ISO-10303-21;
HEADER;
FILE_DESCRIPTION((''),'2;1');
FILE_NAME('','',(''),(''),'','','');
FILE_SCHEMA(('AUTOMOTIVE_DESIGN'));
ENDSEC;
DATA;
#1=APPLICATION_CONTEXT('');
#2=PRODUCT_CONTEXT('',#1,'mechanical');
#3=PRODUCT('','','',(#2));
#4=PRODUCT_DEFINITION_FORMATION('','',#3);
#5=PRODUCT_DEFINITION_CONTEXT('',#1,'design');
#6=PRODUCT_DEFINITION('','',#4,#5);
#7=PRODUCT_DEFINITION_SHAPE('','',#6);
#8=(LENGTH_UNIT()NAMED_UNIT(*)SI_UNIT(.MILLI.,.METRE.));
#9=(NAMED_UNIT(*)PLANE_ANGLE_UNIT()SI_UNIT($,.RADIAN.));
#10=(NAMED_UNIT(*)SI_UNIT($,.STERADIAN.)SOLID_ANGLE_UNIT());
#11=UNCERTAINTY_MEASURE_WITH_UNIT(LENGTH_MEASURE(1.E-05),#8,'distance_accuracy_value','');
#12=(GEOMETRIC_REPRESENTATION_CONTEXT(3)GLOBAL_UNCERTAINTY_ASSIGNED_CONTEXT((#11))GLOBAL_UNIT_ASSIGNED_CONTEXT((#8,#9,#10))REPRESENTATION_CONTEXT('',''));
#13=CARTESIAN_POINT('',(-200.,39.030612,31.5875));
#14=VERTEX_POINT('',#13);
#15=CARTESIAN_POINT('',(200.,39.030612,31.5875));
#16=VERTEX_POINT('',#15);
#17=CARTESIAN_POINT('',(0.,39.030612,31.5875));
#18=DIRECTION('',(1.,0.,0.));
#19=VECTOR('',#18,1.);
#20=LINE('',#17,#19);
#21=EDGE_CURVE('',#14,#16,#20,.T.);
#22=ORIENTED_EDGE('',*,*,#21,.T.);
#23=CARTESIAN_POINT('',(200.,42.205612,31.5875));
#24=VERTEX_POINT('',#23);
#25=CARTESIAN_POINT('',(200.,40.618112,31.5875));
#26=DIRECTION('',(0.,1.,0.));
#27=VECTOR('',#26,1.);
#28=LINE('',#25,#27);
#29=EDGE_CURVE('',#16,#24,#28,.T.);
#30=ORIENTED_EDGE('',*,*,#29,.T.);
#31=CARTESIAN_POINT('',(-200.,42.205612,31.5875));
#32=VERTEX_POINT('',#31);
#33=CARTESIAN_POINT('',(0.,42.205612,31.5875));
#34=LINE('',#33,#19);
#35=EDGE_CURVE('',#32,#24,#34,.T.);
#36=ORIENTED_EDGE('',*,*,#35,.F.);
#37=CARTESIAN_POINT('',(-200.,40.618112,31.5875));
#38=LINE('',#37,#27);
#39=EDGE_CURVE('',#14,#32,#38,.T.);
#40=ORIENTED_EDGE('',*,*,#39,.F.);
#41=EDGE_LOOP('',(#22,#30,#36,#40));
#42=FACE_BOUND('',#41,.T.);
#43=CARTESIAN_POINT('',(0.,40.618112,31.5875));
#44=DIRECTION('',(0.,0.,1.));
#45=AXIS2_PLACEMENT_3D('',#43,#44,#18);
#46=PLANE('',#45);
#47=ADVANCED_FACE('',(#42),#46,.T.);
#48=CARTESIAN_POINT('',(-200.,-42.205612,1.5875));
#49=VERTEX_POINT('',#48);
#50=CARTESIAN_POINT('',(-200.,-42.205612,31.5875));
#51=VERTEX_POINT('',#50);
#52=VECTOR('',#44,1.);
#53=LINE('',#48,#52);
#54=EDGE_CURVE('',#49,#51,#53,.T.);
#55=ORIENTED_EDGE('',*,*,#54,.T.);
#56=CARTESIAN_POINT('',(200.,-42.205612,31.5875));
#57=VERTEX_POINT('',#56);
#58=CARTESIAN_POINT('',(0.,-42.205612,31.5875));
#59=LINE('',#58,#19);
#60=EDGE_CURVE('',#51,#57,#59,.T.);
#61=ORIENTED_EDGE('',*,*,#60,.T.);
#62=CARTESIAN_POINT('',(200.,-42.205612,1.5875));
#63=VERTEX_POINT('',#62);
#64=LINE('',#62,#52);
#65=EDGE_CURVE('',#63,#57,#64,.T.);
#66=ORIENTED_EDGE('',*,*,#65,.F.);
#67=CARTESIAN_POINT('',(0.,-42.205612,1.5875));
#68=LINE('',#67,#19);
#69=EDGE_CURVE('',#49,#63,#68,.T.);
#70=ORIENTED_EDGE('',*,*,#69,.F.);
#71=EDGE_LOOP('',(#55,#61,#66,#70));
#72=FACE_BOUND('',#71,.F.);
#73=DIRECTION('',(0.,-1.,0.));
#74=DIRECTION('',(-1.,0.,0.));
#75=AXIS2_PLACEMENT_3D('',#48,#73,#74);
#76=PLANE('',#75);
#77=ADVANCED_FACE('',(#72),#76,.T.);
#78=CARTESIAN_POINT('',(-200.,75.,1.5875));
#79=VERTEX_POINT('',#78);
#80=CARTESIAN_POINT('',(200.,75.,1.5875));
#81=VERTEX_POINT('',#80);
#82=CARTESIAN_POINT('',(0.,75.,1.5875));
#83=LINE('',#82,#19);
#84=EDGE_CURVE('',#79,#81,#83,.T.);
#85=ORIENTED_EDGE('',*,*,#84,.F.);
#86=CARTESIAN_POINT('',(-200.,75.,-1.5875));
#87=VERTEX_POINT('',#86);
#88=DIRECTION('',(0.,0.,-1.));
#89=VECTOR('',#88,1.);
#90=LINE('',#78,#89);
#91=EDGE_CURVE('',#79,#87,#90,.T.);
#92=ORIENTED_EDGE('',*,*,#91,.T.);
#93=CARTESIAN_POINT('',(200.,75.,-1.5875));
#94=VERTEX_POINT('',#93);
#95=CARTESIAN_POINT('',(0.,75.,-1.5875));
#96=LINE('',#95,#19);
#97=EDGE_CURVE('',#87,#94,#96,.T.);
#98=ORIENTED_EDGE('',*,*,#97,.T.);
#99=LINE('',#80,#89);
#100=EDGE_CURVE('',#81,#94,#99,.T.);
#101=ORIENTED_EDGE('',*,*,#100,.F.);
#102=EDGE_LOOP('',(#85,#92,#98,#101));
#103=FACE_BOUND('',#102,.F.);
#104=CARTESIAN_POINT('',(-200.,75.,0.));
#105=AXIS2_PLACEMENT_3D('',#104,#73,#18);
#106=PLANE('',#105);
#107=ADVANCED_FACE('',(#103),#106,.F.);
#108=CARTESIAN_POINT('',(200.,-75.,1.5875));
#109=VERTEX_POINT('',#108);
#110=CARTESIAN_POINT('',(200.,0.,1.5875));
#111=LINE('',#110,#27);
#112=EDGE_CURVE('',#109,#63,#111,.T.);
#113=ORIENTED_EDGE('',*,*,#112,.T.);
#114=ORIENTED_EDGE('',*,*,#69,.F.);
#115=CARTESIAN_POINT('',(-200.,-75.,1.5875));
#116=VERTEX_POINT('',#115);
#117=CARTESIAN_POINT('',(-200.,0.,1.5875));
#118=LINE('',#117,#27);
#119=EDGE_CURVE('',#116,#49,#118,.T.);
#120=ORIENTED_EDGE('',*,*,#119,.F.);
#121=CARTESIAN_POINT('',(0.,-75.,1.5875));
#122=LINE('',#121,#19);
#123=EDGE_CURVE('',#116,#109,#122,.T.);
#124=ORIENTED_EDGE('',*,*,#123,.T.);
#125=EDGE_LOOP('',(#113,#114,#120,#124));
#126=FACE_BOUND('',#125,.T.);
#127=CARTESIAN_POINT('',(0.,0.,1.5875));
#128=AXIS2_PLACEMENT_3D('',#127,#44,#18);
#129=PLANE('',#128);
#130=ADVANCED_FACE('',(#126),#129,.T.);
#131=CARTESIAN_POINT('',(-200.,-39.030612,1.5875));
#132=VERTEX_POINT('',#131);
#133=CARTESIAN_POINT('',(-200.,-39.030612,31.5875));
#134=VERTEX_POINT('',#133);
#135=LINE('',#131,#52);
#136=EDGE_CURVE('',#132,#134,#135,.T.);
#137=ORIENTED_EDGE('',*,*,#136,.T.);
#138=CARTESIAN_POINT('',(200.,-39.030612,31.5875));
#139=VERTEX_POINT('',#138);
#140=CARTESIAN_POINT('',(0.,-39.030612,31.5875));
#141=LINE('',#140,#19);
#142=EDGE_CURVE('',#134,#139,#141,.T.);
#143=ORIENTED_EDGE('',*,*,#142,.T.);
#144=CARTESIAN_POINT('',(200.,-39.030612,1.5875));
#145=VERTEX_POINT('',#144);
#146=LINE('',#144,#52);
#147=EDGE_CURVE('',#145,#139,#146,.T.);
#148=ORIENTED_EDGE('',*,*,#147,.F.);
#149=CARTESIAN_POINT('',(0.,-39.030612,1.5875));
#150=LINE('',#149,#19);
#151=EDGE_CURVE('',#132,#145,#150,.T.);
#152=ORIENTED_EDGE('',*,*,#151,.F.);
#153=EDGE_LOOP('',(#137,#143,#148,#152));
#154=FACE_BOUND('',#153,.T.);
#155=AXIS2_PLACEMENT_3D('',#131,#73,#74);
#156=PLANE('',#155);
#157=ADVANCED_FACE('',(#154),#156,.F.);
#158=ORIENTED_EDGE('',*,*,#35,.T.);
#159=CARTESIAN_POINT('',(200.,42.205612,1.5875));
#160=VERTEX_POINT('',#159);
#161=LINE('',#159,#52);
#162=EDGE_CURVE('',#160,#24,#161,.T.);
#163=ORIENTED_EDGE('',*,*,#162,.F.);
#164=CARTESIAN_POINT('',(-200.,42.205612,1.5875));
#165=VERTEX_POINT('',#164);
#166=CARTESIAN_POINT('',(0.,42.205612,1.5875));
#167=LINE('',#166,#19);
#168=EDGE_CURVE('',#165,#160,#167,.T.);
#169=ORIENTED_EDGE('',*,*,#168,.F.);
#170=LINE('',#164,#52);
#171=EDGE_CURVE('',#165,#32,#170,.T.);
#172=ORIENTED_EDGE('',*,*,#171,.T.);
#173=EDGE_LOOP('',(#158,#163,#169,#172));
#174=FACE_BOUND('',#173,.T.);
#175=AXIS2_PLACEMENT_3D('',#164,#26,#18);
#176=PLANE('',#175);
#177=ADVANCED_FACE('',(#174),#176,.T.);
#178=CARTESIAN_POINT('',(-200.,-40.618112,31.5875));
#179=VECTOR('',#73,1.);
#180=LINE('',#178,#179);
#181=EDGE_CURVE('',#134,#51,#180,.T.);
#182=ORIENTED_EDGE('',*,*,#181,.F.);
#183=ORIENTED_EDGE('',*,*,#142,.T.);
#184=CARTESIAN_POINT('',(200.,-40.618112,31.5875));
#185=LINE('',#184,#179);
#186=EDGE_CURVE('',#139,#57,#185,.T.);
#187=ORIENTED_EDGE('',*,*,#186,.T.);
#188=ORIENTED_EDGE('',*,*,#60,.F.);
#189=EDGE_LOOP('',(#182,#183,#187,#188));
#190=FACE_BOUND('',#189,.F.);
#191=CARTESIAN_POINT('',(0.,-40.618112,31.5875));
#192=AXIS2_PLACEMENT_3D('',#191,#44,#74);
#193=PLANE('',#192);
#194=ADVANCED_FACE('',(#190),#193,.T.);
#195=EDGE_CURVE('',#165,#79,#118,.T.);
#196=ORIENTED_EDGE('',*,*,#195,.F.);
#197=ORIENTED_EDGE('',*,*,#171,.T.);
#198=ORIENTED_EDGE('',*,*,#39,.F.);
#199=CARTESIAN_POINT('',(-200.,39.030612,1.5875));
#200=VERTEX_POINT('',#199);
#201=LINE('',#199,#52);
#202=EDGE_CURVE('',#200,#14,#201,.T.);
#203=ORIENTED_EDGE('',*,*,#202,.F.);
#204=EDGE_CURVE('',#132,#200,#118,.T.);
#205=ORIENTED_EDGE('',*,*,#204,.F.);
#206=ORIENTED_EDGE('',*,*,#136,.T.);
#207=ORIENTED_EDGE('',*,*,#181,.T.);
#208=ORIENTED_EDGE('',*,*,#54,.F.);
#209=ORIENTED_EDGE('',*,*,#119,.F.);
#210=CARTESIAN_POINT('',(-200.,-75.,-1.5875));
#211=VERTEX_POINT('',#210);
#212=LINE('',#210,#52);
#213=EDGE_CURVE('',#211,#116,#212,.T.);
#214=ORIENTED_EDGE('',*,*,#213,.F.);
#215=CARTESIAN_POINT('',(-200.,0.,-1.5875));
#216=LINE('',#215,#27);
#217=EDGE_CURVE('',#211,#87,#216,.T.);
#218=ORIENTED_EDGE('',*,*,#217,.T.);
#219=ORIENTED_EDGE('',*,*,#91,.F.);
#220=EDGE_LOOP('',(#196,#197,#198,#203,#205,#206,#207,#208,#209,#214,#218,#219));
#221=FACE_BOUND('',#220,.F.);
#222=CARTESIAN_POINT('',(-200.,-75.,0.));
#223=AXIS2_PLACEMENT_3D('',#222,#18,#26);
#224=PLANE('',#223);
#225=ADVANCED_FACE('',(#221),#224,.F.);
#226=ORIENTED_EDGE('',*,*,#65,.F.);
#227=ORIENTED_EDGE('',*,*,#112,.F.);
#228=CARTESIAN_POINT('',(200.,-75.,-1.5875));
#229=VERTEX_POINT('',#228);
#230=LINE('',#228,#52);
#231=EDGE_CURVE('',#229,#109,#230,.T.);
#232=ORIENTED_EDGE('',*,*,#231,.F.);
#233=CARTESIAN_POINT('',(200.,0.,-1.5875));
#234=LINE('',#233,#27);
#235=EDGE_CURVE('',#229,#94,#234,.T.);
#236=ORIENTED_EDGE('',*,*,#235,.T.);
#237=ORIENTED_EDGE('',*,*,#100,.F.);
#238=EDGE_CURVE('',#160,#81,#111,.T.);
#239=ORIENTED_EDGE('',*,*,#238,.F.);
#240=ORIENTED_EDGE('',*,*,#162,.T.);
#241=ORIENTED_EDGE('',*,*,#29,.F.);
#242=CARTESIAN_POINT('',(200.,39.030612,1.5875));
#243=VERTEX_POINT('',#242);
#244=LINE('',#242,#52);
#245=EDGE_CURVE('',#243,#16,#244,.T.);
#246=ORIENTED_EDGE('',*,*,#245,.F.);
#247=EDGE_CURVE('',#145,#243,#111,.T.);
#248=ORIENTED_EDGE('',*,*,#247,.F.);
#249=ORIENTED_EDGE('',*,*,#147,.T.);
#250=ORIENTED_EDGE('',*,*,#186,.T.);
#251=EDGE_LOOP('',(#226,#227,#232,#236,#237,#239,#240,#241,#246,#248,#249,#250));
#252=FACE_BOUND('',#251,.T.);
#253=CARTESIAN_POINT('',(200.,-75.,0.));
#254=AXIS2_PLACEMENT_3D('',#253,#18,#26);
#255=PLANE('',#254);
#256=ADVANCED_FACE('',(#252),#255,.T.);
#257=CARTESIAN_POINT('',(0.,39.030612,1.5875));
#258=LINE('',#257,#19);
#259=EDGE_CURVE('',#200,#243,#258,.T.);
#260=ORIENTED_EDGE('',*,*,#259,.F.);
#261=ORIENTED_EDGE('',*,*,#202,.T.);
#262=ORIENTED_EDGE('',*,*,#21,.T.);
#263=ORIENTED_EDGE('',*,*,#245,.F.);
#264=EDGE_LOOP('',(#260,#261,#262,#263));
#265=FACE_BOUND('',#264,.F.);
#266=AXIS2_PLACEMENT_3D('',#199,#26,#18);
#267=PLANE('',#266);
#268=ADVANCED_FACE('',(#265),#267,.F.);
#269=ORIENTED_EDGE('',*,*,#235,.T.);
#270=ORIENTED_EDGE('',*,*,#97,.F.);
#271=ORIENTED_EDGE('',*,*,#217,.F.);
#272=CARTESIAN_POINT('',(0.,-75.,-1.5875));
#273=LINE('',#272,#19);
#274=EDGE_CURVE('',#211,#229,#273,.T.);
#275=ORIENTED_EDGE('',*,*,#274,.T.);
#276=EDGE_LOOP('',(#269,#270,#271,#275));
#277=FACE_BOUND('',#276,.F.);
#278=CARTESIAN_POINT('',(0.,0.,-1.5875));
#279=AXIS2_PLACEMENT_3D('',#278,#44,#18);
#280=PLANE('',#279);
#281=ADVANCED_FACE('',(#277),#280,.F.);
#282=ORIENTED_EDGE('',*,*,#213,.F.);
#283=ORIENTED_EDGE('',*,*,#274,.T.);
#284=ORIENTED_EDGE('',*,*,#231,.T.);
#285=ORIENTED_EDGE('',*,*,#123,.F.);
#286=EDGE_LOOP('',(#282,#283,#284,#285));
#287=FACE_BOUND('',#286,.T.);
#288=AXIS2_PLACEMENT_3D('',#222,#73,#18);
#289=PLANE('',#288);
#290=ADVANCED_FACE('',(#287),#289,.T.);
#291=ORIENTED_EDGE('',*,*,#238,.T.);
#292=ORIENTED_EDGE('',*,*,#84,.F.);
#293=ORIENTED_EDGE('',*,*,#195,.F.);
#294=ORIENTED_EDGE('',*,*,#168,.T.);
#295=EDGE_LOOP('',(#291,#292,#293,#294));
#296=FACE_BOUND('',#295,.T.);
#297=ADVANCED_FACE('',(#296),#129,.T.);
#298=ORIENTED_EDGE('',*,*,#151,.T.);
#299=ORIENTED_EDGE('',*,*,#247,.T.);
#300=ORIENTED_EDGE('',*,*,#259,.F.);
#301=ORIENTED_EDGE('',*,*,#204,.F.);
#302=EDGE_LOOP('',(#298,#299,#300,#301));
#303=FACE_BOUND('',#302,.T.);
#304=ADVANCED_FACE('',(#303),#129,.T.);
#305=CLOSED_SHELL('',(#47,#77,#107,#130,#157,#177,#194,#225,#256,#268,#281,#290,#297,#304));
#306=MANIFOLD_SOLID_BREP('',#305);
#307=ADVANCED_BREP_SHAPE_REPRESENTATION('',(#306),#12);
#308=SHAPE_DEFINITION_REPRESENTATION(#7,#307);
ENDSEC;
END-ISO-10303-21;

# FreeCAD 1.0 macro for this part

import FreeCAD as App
import Part
import Sketcher

V = App.Vector


def add_polygon(sketch, points):
    """Adds a closed chain of lines whose ends are joined by coincident constraints."""
    first, n = sketch.GeometryCount, len(points)
    for a, b in zip(points, points[1:] + points[:1]):
        sketch.addGeometry(Part.LineSegment(App.Vector(*a, 0), App.Vector(*b, 0)), False)
    for i in range(n):
        sketch.addConstraint(Sketcher.Constraint("Coincident", first + i, 2, first + (i + 1) % n, 1))

doc = App.newDocument("Part")
params = doc.addObject("Spreadsheet::Sheet", "Params")
for row, (alias, value) in enumerate([
    ("sketch1_width", "400 mm"),
    ("sketch1_height", "150 mm"),
    ("pad1_length", "3.175 mm"),
    ("sketch2_width", "400 mm"),
    ("pad2_length", "30 mm"),
], start=1):
    params.set(f"A{row}", alias)
    params.set(f"B{row}", "=" + value)
    params.setAlias(f"B{row}", alias)

body = doc.addObject("PartDesign::Body", "Body")

# Sketch on XY plane
sketch1 = doc.addObject("Sketcher::SketchObject", "Sketch")
body.addObject(sketch1)
sketch1.AttachmentSupport = (doc.XY_Plane, [""])
sketch1.MapMode = "FlatFace"
add_polygon(sketch1, [(-200, 75), (-200, -75), (200, -75), (200, 75)])  # lines 0-3
sketch1.addConstraint([
    Sketcher.Constraint("Vertical", 0),
    Sketcher.Constraint("Horizontal", 1),
    Sketcher.Constraint("Vertical", 2),
    Sketcher.Constraint("Horizontal", 3),
    Sketcher.Constraint("Symmetric", 0, 2, 2, 2, -1, 1),
    Sketcher.Constraint("DistanceX", 1, 1, 1, 2, 400.0),
    Sketcher.Constraint("DistanceY", 0, 2, 0, 1, 150.0),
])
sketch1.setExpression("Constraints[9]", "Params.sketch1_width")
sketch1.setExpression("Constraints[10]", "Params.sketch1_height")
pad1 = doc.addObject("PartDesign::Pad", "Pad")
body.addObject(pad1)
pad1.Profile = sketch1
pad1.setExpression("Length", "Params.pad1_length")
pad1.Midplane = True

# Sketch on XY plane
sketch2 = doc.addObject("Sketcher::SketchObject", "Sketch001")
body.addObject(sketch2)
sketch2.AttachmentSupport = (doc.XY_Plane, [""])
sketch2.MapMode = "FlatFace"
sketch2.AttachmentOffset = App.Placement(V(0, 0, 1.5875), App.Rotation())
add_polygon(sketch2, [(-200, 42.2), (-200, 39), (200, 39), (200, 42.2)])  # lines 0-3
sketch2.addConstraint([
    Sketcher.Constraint("Vertical", 0),
    Sketcher.Constraint("Horizontal", 1),
    Sketcher.Constraint("Vertical", 2),
    Sketcher.Constraint("Horizontal", 3),
    Sketcher.Constraint("DistanceX", 1, 1, 1, 2, 400.0),
    Sketcher.Constraint("DistanceX", 0, 2, -1, 1, 200.0),
    Sketcher.Constraint("DistanceY", 0, 2, 0, 1, 3.175),
    Sketcher.Constraint("DistanceY", -1, 1, 0, 2, 39.030612),
])
sketch2.setExpression("Constraints[8]", "Params.sketch2_width")
pad2 = doc.addObject("PartDesign::Pad", "Pad001")
body.addObject(pad2)
pad2.Profile = sketch2
pad2.setExpression("Length", "Params.pad2_length")
body2 = doc.addObject("PartDesign::Body", "Body001")
doc.recompute()

body2.BaseFeature = body
doc.recompute()

mirroring = doc.addObject("Part::Mirroring", "Mirroring")
mirroring.Source = body
mirroring.Base = V(0, 0, 0)
mirroring.Normal = V(0, -1, 0)
body3 = doc.addObject("PartDesign::Body", "Body002")
body3.BaseFeature = mirroring
boolean = doc.addObject("PartDesign::Boolean", "Boolean")
body2.addObject(boolean)
boolean.Type = "Fuse"
boolean.addObjects([body3])
doc.recompute()
mirroring.Visibility = False

doc.recompute()
